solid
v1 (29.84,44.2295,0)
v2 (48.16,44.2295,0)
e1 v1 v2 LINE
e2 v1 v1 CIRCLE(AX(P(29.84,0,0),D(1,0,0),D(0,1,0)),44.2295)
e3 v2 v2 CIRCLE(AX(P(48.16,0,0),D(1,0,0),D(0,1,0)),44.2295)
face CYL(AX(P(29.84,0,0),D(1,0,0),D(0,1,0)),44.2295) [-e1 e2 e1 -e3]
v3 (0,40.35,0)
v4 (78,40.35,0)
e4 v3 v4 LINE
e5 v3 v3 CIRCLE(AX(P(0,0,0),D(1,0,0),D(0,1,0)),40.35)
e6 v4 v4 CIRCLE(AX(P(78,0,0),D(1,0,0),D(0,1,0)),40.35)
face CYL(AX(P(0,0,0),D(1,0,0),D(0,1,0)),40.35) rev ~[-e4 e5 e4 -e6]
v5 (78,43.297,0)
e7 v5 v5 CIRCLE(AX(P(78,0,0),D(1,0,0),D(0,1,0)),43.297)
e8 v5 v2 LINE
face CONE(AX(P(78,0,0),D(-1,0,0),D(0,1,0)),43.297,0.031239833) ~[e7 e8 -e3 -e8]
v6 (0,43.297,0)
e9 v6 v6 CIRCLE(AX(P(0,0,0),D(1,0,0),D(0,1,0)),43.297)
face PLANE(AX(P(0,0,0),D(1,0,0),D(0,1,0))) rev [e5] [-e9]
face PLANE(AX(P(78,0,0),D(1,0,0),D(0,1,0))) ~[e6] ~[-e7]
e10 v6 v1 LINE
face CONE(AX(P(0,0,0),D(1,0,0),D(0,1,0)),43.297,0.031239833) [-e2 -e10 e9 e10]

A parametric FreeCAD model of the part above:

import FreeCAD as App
import Part
import Sketcher
from FreeCAD import Vector
Q = App.Units.Quantity


def add_polygon(sketch, points):
    """Adds a closed chain of lines whose ends are joined by coincident constraints."""
    first, n = sketch.GeometryCount, len(points)
    for a, b in zip(points, points[1:] + points[:1]):
        sketch.addGeometry(Part.LineSegment(App.Vector(*a, 0), App.Vector(*b, 0)), False)
    for i in range(n):
        sketch.addConstraint(Sketcher.Constraint("Coincident", first + i, 2, first + (i + 1) % n, 1))

doc = App.newDocument("Part")
body = doc.addObject("PartDesign::Body", "Body")

sketch1 = body.newObject("Sketcher::SketchObject", "Sketch")
sketch1.AttachmentSupport = (doc.getObject("XY_Plane"), [""])
sketch1.MapMode = "FlatFace"
add_polygon(sketch1, [(0, 40.4), (78, 40.4), (78, 43.3), (48.2, 44.2), (29.8, 44.2), (0, 43.3)])
sketch1.addConstraint(Sketcher.Constraint("Horizontal", 0))
sketch1.addConstraint(Sketcher.Constraint("Vertical", 1))
sketch1.addConstraint(Sketcher.Constraint("Horizontal", 3))
sketch1.addConstraint(Sketcher.Constraint("Vertical", 5))
sketch1.addConstraint(Sketcher.Constraint("PointOnObject", 4, 2, -2))
sketch1.addConstraint(Sketcher.Constraint("Horizontal", 1, 2, 4, 2))
sketch1.addConstraint(Sketcher.Constraint("Equal", 2, 4))
sketch1.addConstraint(Sketcher.Constraint("DistanceX", 0, 1, 0, 2, 78.0))
sketch1.addConstraint(Sketcher.Constraint("DistanceX", -1, 1, 3, 2, 29.84))
sketch1.addConstraint(Sketcher.Constraint("Angle", 2, Q("178.21 deg")))
sketch1.addConstraint(Sketcher.Constraint("DistanceY", 1, 1, 1, 2, 2.947))
sketch1.addConstraint(Sketcher.Constraint("DistanceY", -1, 1, 0, 2, 40.35))
revolution = body.newObject("PartDesign::Revolution", "Revolution")
revolution.Profile = sketch1
revolution.ReferenceAxis = (sketch1, ["H_Axis"])
revolution.Angle = 360

doc.recompute()
